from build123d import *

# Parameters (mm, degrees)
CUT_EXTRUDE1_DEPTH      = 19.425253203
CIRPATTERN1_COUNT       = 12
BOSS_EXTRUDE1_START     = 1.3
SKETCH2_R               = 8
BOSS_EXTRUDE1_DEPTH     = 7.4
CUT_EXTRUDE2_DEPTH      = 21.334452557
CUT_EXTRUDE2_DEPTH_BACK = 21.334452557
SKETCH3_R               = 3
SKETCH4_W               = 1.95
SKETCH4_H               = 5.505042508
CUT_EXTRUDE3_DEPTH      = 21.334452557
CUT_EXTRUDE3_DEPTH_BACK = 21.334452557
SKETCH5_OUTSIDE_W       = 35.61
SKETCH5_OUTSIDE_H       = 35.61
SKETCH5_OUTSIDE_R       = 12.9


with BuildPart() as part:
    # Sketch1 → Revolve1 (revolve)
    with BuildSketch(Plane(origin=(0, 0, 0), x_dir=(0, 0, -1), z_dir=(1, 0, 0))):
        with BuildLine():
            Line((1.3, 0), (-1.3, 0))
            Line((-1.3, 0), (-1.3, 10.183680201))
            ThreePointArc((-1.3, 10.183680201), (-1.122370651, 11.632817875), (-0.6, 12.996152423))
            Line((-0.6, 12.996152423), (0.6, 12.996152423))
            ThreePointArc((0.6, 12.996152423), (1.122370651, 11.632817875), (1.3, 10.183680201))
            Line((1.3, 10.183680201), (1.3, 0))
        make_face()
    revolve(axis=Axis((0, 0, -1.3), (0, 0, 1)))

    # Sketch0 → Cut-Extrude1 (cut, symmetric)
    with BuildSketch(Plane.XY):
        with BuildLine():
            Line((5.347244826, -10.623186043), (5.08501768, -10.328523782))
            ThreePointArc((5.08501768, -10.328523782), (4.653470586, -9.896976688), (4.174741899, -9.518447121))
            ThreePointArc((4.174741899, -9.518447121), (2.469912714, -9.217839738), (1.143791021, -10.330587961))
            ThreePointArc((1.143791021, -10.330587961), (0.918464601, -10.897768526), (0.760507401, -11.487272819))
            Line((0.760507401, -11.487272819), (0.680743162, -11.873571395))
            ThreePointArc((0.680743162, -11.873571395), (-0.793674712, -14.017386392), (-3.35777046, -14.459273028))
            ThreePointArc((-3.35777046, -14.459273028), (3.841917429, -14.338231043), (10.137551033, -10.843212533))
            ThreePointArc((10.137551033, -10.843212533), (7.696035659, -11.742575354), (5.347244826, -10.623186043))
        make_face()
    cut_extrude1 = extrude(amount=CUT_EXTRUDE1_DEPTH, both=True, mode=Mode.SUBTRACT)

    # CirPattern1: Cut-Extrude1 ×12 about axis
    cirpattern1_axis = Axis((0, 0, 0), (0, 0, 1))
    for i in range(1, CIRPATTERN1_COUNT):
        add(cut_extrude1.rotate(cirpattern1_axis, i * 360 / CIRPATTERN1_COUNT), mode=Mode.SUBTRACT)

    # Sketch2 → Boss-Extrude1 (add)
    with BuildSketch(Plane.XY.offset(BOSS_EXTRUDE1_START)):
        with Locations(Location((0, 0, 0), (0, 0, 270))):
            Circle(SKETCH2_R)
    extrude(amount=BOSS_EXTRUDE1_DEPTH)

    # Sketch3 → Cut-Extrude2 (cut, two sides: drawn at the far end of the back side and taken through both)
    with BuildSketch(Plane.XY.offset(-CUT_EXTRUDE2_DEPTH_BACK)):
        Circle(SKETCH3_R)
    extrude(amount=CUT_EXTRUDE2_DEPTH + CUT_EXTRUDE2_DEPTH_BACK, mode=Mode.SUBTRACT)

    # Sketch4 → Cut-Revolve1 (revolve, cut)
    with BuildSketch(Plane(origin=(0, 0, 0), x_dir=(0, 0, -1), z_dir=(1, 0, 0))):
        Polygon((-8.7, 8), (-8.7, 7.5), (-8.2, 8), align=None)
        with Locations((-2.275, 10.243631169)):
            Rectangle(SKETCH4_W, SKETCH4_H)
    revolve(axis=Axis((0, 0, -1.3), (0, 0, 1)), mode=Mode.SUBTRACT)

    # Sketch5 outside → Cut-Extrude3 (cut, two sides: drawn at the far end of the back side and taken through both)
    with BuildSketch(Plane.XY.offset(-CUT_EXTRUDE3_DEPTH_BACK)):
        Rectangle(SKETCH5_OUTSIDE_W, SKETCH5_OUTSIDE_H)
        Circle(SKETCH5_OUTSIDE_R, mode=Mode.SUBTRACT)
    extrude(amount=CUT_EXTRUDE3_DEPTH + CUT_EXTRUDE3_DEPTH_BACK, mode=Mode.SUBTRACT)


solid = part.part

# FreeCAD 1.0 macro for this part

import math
import FreeCAD as App
import Part
import Sketcher

V = App.Vector

doc = App.newDocument("Part")
params = doc.addObject("Spreadsheet::Sheet", "Params")
for row, (alias, value) in enumerate([
    ("sketch1_radius", "6 mm"),
    ("sketch1_height", "2.6 mm"),
    ("sketch1_height2", "1.2 mm"),
    ("revolution_angle", "360 deg"),
    ("pocket1_length", "38.850506 mm"),
    ("sketch3_diameter", "16 mm"),
    ("pad1_length", "7.4 mm"),
    ("sketch4_diameter", "6 mm"),
    ("sketch5_width", "0.5 mm"),
    ("sketch5_height", "1.95 mm"),
    ("groove_angle", "360 deg"),
    ("sketch6_diameter", "25.8 mm"),
    ("sketch6_width", "35.61 mm"),
], start=1):
    params.set(f"A{row}", alias)
    params.set(f"B{row}", "=" + value)
    params.setAlias(f"B{row}", alias)

body = doc.addObject("PartDesign::Body", "Body")

# Sketch on YZ plane
sketch1 = body.newObject("Sketcher::SketchObject", "Sketch")
sketch1.AttachmentSupport = (doc.getObject("YZ_Plane"), [""])
sketch1.MapMode = "FlatFace"
sketch1.addGeometry(Part.LineSegment(V(0, 1.3, 0), V(0, -1.3, 0)), False)
sketch1.addGeometry(Part.LineSegment(V(0, -1.3, 0), V(10.2, -1.3, 0)), False)
sketch1.addGeometry(Part.ArcOfCircle(Part.Circle(V(10.2, 4.7, 0), V(0, 0, 1), 6), math.radians(-90), math.radians(-62)), False)
sketch1.addGeometry(Part.LineSegment(V(13, -0.6, 0), V(13, 0.6, 0)), False)
sketch1.addGeometry(Part.ArcOfCircle(Part.Circle(V(10.2, -4.7, 0), V(0, 0, 1), 6), math.radians(62), math.radians(90)), False)
sketch1.addGeometry(Part.LineSegment(V(10.2, 1.3, 0), V(0, 1.3, 0)), False)
sketch1.addConstraint(Sketcher.Constraint("Coincident", 0, 2, 1, 1))
sketch1.addConstraint(Sketcher.Constraint("Tangent", 1, 2, 2, 1))
sketch1.addConstraint(Sketcher.Constraint("Coincident", 2, 2, 3, 1))
sketch1.addConstraint(Sketcher.Constraint("Coincident", 3, 2, 4, 1))
sketch1.addConstraint(Sketcher.Constraint("Tangent", 4, 2, 5, 1))
sketch1.addConstraint(Sketcher.Constraint("Coincident", 5, 2, 0, 1))
sketch1.addConstraint(Sketcher.Constraint("Vertical", 0))
sketch1.addConstraint(Sketcher.Constraint("Horizontal", 1))
sketch1.addConstraint(Sketcher.Constraint("Vertical", 3))
sketch1.addConstraint(Sketcher.Constraint("Horizontal", 5))
sketch1.addConstraint(Sketcher.Constraint("Equal", 2, 4))
sketch1.addConstraint(Sketcher.Constraint("Symmetric", 0, 2, 5, 2, -1, 1))
sketch1.addConstraint(Sketcher.Constraint("Vertical", 2, 3, 4, 3))
sketch1.addConstraint(Sketcher.Constraint("Radius", 2, 6.0))
sketch1.addConstraint(Sketcher.Constraint("DistanceY", 0, 2, 0, 1, 2.6))
sketch1.addConstraint(Sketcher.Constraint("DistanceY", 3, 1, 3, 2, 1.2))
sketch1.addConstraint(Sketcher.Constraint("DistanceX", 1, 1, 1, 2, 10.18368))
sketch1.setExpression("Constraints[13]", "Params.sketch1_radius")
sketch1.setExpression("Constraints[14]", "Params.sketch1_height")
sketch1.setExpression("Constraints[15]", "Params.sketch1_height2")
revolution = body.newObject("PartDesign::Revolution", "Revolution")
revolution.Profile = sketch1
revolution.ReferenceAxis = (sketch1, ["V_Axis"])
revolution.setExpression("Angle", "Params.revolution_angle")

# Sketch on XY plane
sketch2 = body.newObject("Sketcher::SketchObject", "Sketch001")
sketch2.AttachmentSupport = (doc.getObject("XY_Plane"), [""])
sketch2.MapMode = "FlatFace"
sketch2.addGeometry(Part.LineSegment(V(5.35, -10.62, 0), V(5.09, -10.33, 0)), False)
sketch2.addGeometry(Part.ArcOfCircle(Part.Circle(V(1.16, -13.82, 0), V(0, 0, 1), 5.25), math.radians(41.67), math.radians(55)), False)
sketch2.addGeometry(Part.ArcOfCircle(Part.Circle(V(3, -11.2, 0), V(0, 0, 1), 2.05), math.radians(55), math.radians(155)), False)
sketch2.addGeometry(Part.ArcOfCircle(Part.Circle(V(5.9, -12.55, 0), V(0, 0, 1), 5.25), math.radians(155), math.radians(168.33)), False)
sketch2.addGeometry(Part.LineSegment(V(0.76, -11.49, 0), V(0.68, -11.87, 0)), False)
sketch2.addGeometry(Part.ArcOfCircle(Part.Circle(V(-2.6, -11.2, 0), V(0, 0, 1), 3.35), math.radians(-103), math.radians(-12)), False)
sketch2.addGeometry(Part.ArcOfCircle(Part.Circle(V(0, 0, 0), V(0, 0, 1), 14.84), math.radians(-103), math.radians(-47)), False)
sketch2.addGeometry(Part.ArcOfCircle(Part.Circle(V(7.85, -8.4, 0), V(0, 0, 1), 3.35), math.radians(-138), math.radians(-47)), False)
sketch2.addConstraint(Sketcher.Constraint("Tangent", 0, 2, 1, 1))
sketch2.addConstraint(Sketcher.Constraint("Tangent", 1, 2, 2, 1))
sketch2.addConstraint(Sketcher.Constraint("Tangent", 2, 2, 3, 1))
sketch2.addConstraint(Sketcher.Constraint("Tangent", 3, 2, 4, 1))
sketch2.addConstraint(Sketcher.Constraint("Tangent", 4, 2, 5, 2))
sketch2.addConstraint(Sketcher.Constraint("Tangent", 5, 1, 6, 1))
sketch2.addConstraint(Sketcher.Constraint("Tangent", 6, 2, 7, 2))
sketch2.addConstraint(Sketcher.Constraint("Tangent", 7, 1, 0, 1))
sketch2.addConstraint(Sketcher.Constraint("Coincident", 6, 3, -1, 1))
sketch2.addConstraint(Sketcher.Constraint("Equal", 1, 3))
sketch2.addConstraint(Sketcher.Constraint("Equal", 5, 7))
sketch2.addConstraint(Sketcher.Constraint("Horizontal", 2, 3, 5, 3))
sketch2.addConstraint(Sketcher.Constraint("Equal", 0, 4))
sketch2.addConstraint(Sketcher.Constraint("DistanceX", -1, 1, 2, 3, 3.0))
sketch2.addConstraint(Sketcher.Constraint("DistanceX", 5, 3, -1, 1, 2.6))
sketch2.addConstraint(Sketcher.Constraint("Radius", 1, 5.2481))
sketch2.addConstraint(Sketcher.Constraint("Radius", 2, 2.0481))
sketch2.addConstraint(Sketcher.Constraint("DistanceY", 2, 3, 7, 3, 2.8))
sketch2.addConstraint(Sketcher.Constraint("Radius", 5, 3.349951))
sketch2.addConstraint(Sketcher.Constraint("Radius", 6, 14.844029))
sketch2.addConstraint(Sketcher.Constraint("DistanceX", 1, 2, 7, 3, 3.675))
pocket1 = body.newObject("PartDesign::Pocket", "Pocket")
pocket1.Profile = sketch2
pocket1.setExpression("Length", "Params.pocket1_length")
pocket1.Midplane = True
doc.recompute()

polarpattern = body.newObject("PartDesign::PolarPattern", "PolarPattern")
polarpattern.Originals = [pocket1]
polarpattern.Axis = (doc.getObject("Z_Axis"), [""])
polarpattern.Angle = 360
polarpattern.Occurrences = 12
body.Tip = polarpattern

# Sketch on XY plane
sketch3 = body.newObject("Sketcher::SketchObject", "Sketch002")
sketch3.AttachmentSupport = (doc.getObject("XY_Plane"), [""])
sketch3.MapMode = "FlatFace"
sketch3.AttachmentOffset = App.Placement(V(0, 0, 1.3), App.Rotation())
sketch3.addGeometry(Part.Circle(V(0, 0, 0), V(0, 0, 1), 8), False)
sketch3.addConstraint(Sketcher.Constraint("Coincident", 0, 3, -1, 1))
sketch3.addConstraint(Sketcher.Constraint("Diameter", 0, 16.0))
sketch3.setExpression("Constraints[1]", "Params.sketch3_diameter")
pad1 = body.newObject("PartDesign::Pad", "Pad")
pad1.Profile = sketch3
pad1.setExpression("Length", "Params.pad1_length")

# Sketch on XY plane
sketch4 = body.newObject("Sketcher::SketchObject", "Sketch003")
sketch4.AttachmentSupport = (doc.getObject("XY_Plane"), [""])
sketch4.MapMode = "FlatFace"
sketch4.addGeometry(Part.Circle(V(0, 0, 0), V(0, 0, 1), 3), False)
sketch4.addConstraint(Sketcher.Constraint("Coincident", 0, 3, -1, 1))
sketch4.addConstraint(Sketcher.Constraint("Diameter", 0, 6.0))
sketch4.setExpression("Constraints[1]", "Params.sketch4_diameter")
pocket2 = body.newObject("PartDesign::Pocket", "Pocket001")
pocket2.Profile = sketch4
pocket2.Type = "ThroughAll"
pocket2.Midplane = True

# Sketch on YZ plane
sketch5 = body.newObject("Sketcher::SketchObject", "Sketch004")
sketch5.AttachmentSupport = (doc.getObject("YZ_Plane"), [""])
sketch5.MapMode = "FlatFace"
sketch5.addGeometry(Part.LineSegment(V(8, 8.7, 0), V(7.5, 8.7, 0)), False)
sketch5.addGeometry(Part.LineSegment(V(7.5, 8.7, 0), V(8, 8.2, 0)), False)
sketch5.addGeometry(Part.LineSegment(V(8, 8.2, 0), V(8, 8.7, 0)), False)
sketch5.addGeometry(Part.LineSegment(V(13, 3.2, 0), V(7.5, 3.2, 0)), False)
sketch5.addGeometry(Part.LineSegment(V(7.5, 3.2, 0), V(7.5, 1.3, 0)), False)
sketch5.addGeometry(Part.LineSegment(V(7.5, 1.3, 0), V(13, 1.3, 0)), False)
sketch5.addGeometry(Part.LineSegment(V(13, 1.3, 0), V(13, 3.2, 0)), False)
sketch5.addConstraint(Sketcher.Constraint("Coincident", 0, 2, 1, 1))
sketch5.addConstraint(Sketcher.Constraint("Coincident", 1, 2, 2, 1))
sketch5.addConstraint(Sketcher.Constraint("Coincident", 2, 2, 0, 1))
sketch5.addConstraint(Sketcher.Constraint("Coincident", 3, 2, 4, 1))
sketch5.addConstraint(Sketcher.Constraint("Coincident", 4, 2, 5, 1))
sketch5.addConstraint(Sketcher.Constraint("Coincident", 5, 2, 6, 1))
sketch5.addConstraint(Sketcher.Constraint("Coincident", 6, 2, 3, 1))
sketch5.addConstraint(Sketcher.Constraint("Horizontal", 0))
sketch5.addConstraint(Sketcher.Constraint("Vertical", 2))
sketch5.addConstraint(Sketcher.Constraint("Horizontal", 3))
sketch5.addConstraint(Sketcher.Constraint("Vertical", 4))
sketch5.addConstraint(Sketcher.Constraint("Horizontal", 5))
sketch5.addConstraint(Sketcher.Constraint("Vertical", 6))
sketch5.addConstraint(Sketcher.Constraint("Equal", 0, 2))
sketch5.addConstraint(Sketcher.Constraint("DistanceX", 0, 2, 0, 1, 0.5))
sketch5.addConstraint(Sketcher.Constraint("DistanceX", -1, 1, 1, 2, 8.0))
sketch5.addConstraint(Sketcher.Constraint("DistanceY", 4, 2, 4, 1, 1.95))
sketch5.addConstraint(Sketcher.Constraint("DistanceY", -1, 1, 0, 2, 8.7))
sketch5.addConstraint(Sketcher.Constraint("DistanceY", -1, 1, 4, 2, 1.3))
sketch5.addConstraint(Sketcher.Constraint("DistanceX", 3, 2, 3, 1, 5.505043))
sketch5.addConstraint(Sketcher.Constraint("DistanceX", -1, 1, 3, 2, 7.49111))
sketch5.setExpression("Constraints[14]", "Params.sketch5_width")
sketch5.setExpression("Constraints[16]", "Params.sketch5_height")
groove = body.newObject("PartDesign::Groove", "Groove")
groove.Profile = sketch5
groove.ReferenceAxis = (sketch5, ["V_Axis"])
groove.setExpression("Angle", "Params.groove_angle")

# Sketch on XY plane
sketch6 = body.newObject("Sketcher::SketchObject", "Sketch005")
sketch6.AttachmentSupport = (doc.getObject("XY_Plane"), [""])
sketch6.MapMode = "FlatFace"
sketch6.addGeometry(Part.LineSegment(V(-18, 18, 0), V(-18, -18, 0)), False)
sketch6.addGeometry(Part.LineSegment(V(-18, -18, 0), V(18, -18, 0)), False)
sketch6.addGeometry(Part.LineSegment(V(18, -18, 0), V(18, 18, 0)), False)
sketch6.addGeometry(Part.LineSegment(V(18, 18, 0), V(-18, 18, 0)), False)
sketch6.addGeometry(Part.Circle(V(0, 0, 0), V(0, 0, 1), 13), False)
sketch6.addConstraint(Sketcher.Constraint("Coincident", 0, 2, 1, 1))
sketch6.addConstraint(Sketcher.Constraint("Coincident", 1, 2, 2, 1))
sketch6.addConstraint(Sketcher.Constraint("Coincident", 2, 2, 3, 1))
sketch6.addConstraint(Sketcher.Constraint("Coincident", 3, 2, 0, 1))
sketch6.addConstraint(Sketcher.Constraint("Vertical", 0))
sketch6.addConstraint(Sketcher.Constraint("Horizontal", 1))
sketch6.addConstraint(Sketcher.Constraint("Vertical", 2))
sketch6.addConstraint(Sketcher.Constraint("Horizontal", 3))
sketch6.addConstraint(Sketcher.Constraint("Coincident", 4, 3, -1, 1))
sketch6.addConstraint(Sketcher.Constraint("Symmetric", 0, 2, 2, 2, -1, 1))
sketch6.addConstraint(Sketcher.Constraint("Equal", 3, 0))
sketch6.addConstraint(Sketcher.Constraint("Diameter", 4, 25.8))
sketch6.addConstraint(Sketcher.Constraint("DistanceX", 1, 1, 1, 2, 35.61))
sketch6.setExpression("Constraints[11]", "Params.sketch6_diameter")
sketch6.setExpression("Constraints[12]", "Params.sketch6_width")
pocket3 = body.newObject("PartDesign::Pocket", "Pocket002")
pocket3.Profile = sketch6
pocket3.Type = "ThroughAll"
pocket3.Midplane = True

doc.recompute()
